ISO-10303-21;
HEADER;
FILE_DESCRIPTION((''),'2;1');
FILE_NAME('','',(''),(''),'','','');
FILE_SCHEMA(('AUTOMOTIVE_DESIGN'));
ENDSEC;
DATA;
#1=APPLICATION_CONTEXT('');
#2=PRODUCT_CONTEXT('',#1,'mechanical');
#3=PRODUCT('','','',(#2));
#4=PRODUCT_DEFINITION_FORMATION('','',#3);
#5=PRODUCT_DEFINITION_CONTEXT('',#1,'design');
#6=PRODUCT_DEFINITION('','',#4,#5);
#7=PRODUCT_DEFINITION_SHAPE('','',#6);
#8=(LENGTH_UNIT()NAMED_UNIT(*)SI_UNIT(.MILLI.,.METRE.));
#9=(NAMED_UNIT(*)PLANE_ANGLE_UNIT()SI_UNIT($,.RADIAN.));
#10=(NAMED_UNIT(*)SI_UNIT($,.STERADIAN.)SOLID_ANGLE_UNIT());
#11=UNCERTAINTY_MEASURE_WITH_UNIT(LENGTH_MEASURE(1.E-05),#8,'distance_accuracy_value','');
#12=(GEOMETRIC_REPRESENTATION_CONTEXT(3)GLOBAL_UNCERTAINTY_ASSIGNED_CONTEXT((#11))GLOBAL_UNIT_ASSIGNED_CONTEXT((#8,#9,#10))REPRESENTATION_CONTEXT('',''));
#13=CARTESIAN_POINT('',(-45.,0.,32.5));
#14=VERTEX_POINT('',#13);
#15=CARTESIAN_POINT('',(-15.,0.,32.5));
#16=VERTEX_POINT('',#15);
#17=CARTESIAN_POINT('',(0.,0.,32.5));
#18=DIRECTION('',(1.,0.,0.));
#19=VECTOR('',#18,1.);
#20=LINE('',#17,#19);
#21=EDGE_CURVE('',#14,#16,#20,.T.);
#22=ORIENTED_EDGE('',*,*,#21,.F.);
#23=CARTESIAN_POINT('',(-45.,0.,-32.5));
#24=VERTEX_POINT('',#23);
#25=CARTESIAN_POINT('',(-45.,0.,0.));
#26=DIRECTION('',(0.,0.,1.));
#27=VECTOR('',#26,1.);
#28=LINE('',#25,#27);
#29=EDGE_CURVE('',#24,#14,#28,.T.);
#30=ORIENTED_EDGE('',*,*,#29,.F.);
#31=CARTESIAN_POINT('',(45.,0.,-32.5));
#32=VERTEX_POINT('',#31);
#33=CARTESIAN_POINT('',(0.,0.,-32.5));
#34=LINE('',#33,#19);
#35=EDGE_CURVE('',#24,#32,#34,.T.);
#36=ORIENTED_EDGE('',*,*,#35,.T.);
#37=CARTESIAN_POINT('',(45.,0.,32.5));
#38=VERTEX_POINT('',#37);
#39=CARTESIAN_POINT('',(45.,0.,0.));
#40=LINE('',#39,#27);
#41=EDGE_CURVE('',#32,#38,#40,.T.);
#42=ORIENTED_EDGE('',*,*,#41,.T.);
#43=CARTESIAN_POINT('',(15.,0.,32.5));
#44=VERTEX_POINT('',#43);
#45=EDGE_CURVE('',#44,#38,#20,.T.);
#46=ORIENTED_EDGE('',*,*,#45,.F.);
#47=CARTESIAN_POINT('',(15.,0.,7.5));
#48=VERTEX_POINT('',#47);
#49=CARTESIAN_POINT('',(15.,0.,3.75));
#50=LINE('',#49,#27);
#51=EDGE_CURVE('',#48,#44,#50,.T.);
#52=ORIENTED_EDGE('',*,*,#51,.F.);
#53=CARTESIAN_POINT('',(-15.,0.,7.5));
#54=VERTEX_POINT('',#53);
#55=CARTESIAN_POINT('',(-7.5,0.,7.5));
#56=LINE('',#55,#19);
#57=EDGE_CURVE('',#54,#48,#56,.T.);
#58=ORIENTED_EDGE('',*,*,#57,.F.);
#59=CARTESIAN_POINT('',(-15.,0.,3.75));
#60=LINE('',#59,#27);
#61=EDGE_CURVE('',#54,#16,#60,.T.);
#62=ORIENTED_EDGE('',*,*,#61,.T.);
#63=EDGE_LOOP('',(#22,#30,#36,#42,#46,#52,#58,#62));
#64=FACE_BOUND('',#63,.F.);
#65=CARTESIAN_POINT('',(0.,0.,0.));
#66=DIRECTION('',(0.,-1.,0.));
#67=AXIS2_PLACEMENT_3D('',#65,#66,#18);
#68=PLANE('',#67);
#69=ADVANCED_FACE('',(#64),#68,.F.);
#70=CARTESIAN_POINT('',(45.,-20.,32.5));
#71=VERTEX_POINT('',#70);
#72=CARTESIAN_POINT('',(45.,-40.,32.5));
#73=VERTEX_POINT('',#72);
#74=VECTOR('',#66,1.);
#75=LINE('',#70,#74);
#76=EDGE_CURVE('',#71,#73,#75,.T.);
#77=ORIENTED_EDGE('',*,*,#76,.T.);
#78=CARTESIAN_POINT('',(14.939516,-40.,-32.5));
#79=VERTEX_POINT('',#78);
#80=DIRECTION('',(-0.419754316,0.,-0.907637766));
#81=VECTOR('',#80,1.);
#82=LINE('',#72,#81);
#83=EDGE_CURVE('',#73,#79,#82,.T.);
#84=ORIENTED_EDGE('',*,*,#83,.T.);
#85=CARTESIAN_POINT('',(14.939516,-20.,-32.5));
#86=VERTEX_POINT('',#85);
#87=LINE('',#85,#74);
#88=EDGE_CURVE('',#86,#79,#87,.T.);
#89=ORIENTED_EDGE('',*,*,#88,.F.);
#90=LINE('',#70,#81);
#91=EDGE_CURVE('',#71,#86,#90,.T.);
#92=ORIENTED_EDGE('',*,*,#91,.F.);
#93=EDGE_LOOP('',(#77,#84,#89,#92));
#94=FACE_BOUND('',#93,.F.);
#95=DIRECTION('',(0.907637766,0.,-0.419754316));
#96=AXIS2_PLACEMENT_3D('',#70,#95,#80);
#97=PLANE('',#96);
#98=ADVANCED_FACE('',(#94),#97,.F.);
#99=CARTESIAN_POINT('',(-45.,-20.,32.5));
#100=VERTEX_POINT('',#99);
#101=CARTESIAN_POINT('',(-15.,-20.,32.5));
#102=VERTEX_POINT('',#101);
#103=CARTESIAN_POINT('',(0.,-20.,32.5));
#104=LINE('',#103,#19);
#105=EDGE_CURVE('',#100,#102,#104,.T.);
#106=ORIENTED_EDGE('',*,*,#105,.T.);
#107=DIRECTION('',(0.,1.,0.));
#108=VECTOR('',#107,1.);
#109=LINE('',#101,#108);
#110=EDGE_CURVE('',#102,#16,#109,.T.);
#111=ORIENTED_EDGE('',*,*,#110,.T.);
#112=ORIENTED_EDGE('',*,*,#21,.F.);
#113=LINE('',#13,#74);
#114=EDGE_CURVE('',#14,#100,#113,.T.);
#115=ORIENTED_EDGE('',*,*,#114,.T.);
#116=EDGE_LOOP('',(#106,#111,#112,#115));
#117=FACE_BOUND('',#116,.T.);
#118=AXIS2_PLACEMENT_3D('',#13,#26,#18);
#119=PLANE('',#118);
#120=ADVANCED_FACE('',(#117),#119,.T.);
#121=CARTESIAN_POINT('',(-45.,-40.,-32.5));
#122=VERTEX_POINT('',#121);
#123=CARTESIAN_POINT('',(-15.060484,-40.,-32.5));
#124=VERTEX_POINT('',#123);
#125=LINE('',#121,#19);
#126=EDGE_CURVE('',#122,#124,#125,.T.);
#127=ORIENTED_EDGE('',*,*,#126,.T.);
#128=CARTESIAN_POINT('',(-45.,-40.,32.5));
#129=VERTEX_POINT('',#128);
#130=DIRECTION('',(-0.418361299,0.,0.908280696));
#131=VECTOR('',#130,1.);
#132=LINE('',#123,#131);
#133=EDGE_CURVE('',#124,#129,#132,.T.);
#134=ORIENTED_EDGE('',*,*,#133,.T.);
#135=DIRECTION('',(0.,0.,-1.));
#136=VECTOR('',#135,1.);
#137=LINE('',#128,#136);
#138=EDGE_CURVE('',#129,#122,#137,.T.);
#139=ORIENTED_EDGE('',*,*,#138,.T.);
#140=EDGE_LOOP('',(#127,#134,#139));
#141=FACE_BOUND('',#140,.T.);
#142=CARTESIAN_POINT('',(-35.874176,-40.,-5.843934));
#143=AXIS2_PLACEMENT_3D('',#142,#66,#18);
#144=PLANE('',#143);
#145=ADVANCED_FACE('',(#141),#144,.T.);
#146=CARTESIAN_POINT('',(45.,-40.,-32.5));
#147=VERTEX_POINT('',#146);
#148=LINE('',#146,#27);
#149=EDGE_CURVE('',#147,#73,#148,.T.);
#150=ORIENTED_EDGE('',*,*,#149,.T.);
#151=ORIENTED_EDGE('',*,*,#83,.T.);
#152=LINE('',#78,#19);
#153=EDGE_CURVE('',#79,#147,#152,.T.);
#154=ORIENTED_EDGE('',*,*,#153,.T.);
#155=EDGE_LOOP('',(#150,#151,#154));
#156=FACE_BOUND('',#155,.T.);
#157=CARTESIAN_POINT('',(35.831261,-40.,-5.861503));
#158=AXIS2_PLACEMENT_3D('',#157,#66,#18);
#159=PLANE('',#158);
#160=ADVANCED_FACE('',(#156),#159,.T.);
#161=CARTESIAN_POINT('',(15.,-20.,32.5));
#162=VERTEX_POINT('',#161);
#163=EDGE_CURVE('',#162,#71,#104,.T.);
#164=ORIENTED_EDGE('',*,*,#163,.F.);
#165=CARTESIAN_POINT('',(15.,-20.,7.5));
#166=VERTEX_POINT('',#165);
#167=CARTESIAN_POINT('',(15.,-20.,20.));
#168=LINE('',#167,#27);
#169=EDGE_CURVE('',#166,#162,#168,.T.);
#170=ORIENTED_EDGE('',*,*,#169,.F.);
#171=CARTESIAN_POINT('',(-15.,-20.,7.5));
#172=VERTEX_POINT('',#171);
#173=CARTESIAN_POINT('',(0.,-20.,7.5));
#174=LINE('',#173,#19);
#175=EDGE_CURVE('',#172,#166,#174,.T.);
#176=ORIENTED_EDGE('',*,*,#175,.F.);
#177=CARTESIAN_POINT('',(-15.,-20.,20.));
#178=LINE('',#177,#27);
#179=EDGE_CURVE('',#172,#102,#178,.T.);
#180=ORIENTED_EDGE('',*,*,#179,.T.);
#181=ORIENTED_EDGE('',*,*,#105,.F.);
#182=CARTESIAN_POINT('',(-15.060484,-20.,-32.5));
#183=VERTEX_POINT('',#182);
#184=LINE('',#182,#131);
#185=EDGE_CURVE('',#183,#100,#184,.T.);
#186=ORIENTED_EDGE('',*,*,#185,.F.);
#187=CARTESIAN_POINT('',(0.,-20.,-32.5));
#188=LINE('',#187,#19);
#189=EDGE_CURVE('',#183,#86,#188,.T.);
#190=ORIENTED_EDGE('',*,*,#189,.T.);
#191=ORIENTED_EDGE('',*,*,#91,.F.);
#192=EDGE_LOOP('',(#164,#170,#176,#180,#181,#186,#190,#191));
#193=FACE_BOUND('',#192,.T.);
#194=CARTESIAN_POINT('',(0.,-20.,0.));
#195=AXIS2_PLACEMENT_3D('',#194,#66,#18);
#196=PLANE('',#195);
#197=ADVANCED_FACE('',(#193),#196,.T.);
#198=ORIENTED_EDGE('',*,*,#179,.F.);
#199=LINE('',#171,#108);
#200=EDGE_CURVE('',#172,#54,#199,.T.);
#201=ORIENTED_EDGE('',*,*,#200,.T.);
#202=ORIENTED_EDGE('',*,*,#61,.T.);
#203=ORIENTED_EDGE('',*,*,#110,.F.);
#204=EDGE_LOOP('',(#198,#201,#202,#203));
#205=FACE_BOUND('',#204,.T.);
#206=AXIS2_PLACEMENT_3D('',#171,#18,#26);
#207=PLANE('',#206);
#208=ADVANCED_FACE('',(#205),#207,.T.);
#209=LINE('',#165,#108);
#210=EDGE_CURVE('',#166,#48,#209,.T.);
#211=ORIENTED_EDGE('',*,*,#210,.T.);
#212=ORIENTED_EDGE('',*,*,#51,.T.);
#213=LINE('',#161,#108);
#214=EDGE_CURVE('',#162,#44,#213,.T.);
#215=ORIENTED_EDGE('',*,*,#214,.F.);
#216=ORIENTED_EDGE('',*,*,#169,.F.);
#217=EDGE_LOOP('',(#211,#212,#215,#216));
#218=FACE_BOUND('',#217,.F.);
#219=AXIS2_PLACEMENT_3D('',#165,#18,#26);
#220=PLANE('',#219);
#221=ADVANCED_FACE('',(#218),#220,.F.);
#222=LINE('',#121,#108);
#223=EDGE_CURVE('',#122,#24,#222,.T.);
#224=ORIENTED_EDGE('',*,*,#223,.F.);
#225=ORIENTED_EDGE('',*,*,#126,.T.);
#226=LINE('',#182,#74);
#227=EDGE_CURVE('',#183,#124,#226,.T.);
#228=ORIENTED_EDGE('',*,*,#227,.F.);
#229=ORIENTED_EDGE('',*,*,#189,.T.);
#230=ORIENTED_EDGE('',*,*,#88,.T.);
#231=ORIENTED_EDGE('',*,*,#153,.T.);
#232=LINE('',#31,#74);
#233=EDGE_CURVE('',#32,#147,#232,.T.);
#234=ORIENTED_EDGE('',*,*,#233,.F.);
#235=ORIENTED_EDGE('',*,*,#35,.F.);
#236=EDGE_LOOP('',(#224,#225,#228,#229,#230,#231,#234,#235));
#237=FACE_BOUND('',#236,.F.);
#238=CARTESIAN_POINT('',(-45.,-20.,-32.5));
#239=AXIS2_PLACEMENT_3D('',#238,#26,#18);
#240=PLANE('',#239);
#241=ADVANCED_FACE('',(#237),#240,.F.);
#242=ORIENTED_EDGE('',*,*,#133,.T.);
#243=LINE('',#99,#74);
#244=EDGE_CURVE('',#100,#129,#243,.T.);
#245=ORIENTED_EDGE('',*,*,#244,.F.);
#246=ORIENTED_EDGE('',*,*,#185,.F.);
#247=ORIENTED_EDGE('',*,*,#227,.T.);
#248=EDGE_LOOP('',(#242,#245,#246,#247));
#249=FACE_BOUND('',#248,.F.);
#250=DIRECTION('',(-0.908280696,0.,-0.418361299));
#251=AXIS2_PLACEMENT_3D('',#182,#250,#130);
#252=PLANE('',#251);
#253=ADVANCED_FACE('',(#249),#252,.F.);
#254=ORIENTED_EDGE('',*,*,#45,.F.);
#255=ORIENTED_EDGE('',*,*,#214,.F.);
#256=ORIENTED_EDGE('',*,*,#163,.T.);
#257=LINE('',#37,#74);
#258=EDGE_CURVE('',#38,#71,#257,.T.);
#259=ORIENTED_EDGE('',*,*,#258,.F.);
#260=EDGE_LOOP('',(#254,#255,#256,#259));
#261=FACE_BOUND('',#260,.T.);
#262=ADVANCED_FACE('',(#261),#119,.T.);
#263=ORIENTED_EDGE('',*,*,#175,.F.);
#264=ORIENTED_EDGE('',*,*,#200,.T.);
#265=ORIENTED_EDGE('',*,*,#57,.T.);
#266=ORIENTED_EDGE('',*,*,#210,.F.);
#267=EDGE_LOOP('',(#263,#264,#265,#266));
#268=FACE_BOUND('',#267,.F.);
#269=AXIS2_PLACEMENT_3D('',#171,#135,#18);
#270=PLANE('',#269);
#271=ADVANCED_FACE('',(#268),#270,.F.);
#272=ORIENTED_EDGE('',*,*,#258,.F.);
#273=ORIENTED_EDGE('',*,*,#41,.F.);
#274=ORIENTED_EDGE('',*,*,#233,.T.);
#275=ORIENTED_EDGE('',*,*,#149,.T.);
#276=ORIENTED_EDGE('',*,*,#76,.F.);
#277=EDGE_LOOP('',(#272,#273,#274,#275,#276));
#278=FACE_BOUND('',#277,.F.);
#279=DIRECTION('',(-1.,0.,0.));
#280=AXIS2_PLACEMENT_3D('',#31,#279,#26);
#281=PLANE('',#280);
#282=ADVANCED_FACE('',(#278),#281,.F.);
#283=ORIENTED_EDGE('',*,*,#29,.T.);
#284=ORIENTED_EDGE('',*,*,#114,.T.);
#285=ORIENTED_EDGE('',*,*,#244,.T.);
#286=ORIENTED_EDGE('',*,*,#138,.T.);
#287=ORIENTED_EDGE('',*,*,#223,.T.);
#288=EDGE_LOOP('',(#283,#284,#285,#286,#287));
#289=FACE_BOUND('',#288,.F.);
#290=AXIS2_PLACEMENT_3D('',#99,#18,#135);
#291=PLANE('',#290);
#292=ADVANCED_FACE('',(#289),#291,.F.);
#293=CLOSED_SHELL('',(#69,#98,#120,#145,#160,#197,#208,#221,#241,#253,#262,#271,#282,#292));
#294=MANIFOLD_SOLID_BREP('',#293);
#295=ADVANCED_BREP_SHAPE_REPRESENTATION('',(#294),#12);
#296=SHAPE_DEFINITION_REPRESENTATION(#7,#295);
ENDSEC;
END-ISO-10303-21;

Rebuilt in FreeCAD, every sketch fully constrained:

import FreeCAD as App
import Part
import Sketcher
Q = App.Units.Quantity


def add_polygon(sketch, points):
    """Adds a closed chain of lines whose ends are joined by coincident constraints."""
    first, n = sketch.GeometryCount, len(points)
    for a, b in zip(points, points[1:] + points[:1]):
        sketch.addGeometry(Part.LineSegment(App.Vector(*a, 0), App.Vector(*b, 0)), False)
    for i in range(n):
        sketch.addConstraint(Sketcher.Constraint("Coincident", first + i, 2, first + (i + 1) % n, 1))

doc = App.newDocument("Part")
params = doc.addObject("Spreadsheet::Sheet", "Params")
for row, (alias, value) in enumerate([
    ("sketch1_width", "90 mm"),
    ("sketch1_height", "65 mm"),
    ("pad1_length", "20 mm"),
    ("sketch2_width", "30 mm"),
    ("sketch2_height", "25 mm"),
    ("sketch3_height", "65 mm"),
    ("pad2_length", "20 mm"),
], start=1):
    params.set(f"A{row}", alias)
    params.set(f"B{row}", "=" + value)
    params.setAlias(f"B{row}", alias)

body = doc.addObject("PartDesign::Body", "Body")

sketch1 = body.newObject("Sketcher::SketchObject", "Sketch")
sketch1.AttachmentSupport = (doc.getObject("XZ_Plane"), [""])
sketch1.MapMode = "FlatFace"
add_polygon(sketch1, [(-45, 32.5), (-45, -32.5), (45, -32.5), (45, 32.5)])
sketch1.addConstraint(Sketcher.Constraint("Vertical", 0))
sketch1.addConstraint(Sketcher.Constraint("Horizontal", 1))
sketch1.addConstraint(Sketcher.Constraint("Vertical", 2))
sketch1.addConstraint(Sketcher.Constraint("Horizontal", 3))
sketch1.addConstraint(Sketcher.Constraint("Symmetric", 0, 2, 2, 2, -1, 1))
sketch1.addConstraint(Sketcher.Constraint("DistanceX", 1, 1, 1, 2, Q("90 mm")))
sketch1.addConstraint(Sketcher.Constraint("DistanceY", 0, 2, 0, 1, Q("65 mm")))
sketch1.setExpression("Constraints[9]", "Params.sketch1_width")
sketch1.setExpression("Constraints[10]", "Params.sketch1_height")
pad1 = body.newObject("PartDesign::Pad", "Pad")
pad1.Profile = sketch1
pad1.setExpression("Length", "Params.pad1_length")

sketch2 = body.newObject("Sketcher::SketchObject", "Sketch001")
sketch2.AttachmentSupport = (doc.getObject("XZ_Plane"), [""])
sketch2.MapMode = "FlatFace"
sketch2.AttachmentOffset = App.Placement(App.Vector(0, 0, 20), App.Rotation())
add_polygon(sketch2, [(-15, 32.5), (-15, 7.5), (15, 7.5), (15, 32.5)])
sketch2.addConstraint(Sketcher.Constraint("Vertical", 0))
sketch2.addConstraint(Sketcher.Constraint("Horizontal", 1))
sketch2.addConstraint(Sketcher.Constraint("Vertical", 2))
sketch2.addConstraint(Sketcher.Constraint("Horizontal", 3))
sketch2.addConstraint(Sketcher.Constraint("DistanceX", 1, 1, 1, 2, Q("30 mm")))
sketch2.addConstraint(Sketcher.Constraint("DistanceY", 0, 2, 0, 1, Q("25 mm")))
sketch2.addConstraint(Sketcher.Constraint("DistanceX", 0, 2, -1, 1, Q("15 mm")))
sketch2.addConstraint(Sketcher.Constraint("DistanceY", -1, 1, 0, 2, Q("7.5 mm")))
sketch2.setExpression("Constraints[8]", "Params.sketch2_width")
sketch2.setExpression("Constraints[9]", "Params.sketch2_height")
pocket1 = body.newObject("PartDesign::Pocket", "Pocket")
pocket1.Profile = sketch2
pocket1.Type = "ThroughAll"

sketch3 = body.newObject("Sketcher::SketchObject", "Sketch002")
sketch3.AttachmentSupport = (doc.getObject("XZ_Plane"), [""])
sketch3.MapMode = "FlatFace"
sketch3.AttachmentOffset = App.Placement(App.Vector(0, 0, 20), App.Rotation())
add_polygon(sketch3, [(-15.060484, -32.5), (-45, 32.5), (-45, -32.5)])
add_polygon(sketch3, [(45, 32.5), (14.939516, -32.5), (45, -32.5)])
sketch3.addConstraint(Sketcher.Constraint("Vertical", 1))
sketch3.addConstraint(Sketcher.Constraint("Horizontal", 2))
sketch3.addConstraint(Sketcher.Constraint("Horizontal", 4))
sketch3.addConstraint(Sketcher.Constraint("Vertical", 5))
sketch3.addConstraint(Sketcher.Constraint("Symmetric", 0, 2, 4, 2, -1, 1))
sketch3.addConstraint(Sketcher.Constraint("Horizontal", 2, 2, 3, 2))
sketch3.addConstraint(Sketcher.Constraint("Horizontal", 0, 2, 5, 2))
sketch3.addConstraint(Sketcher.Constraint("DistanceY", 1, 2, 1, 1, Q("65 mm")))
sketch3.addConstraint(Sketcher.Constraint("DistanceX", 0, 2, -1, 1, Q("45 mm")))
sketch3.addConstraint(Sketcher.Constraint("DistanceX", 2, 2, 3, 2, Q("30 mm")))
sketch3.addConstraint(Sketcher.Constraint("Distance", 0, Q("71.56378 mm")))
sketch3.setExpression("Constraints[13]", "Params.sketch3_height")
pad2 = body.newObject("PartDesign::Pad", "Pad001")
pad2.Profile = sketch3
pad2.setExpression("Length", "Params.pad2_length")

doc.recompute()
